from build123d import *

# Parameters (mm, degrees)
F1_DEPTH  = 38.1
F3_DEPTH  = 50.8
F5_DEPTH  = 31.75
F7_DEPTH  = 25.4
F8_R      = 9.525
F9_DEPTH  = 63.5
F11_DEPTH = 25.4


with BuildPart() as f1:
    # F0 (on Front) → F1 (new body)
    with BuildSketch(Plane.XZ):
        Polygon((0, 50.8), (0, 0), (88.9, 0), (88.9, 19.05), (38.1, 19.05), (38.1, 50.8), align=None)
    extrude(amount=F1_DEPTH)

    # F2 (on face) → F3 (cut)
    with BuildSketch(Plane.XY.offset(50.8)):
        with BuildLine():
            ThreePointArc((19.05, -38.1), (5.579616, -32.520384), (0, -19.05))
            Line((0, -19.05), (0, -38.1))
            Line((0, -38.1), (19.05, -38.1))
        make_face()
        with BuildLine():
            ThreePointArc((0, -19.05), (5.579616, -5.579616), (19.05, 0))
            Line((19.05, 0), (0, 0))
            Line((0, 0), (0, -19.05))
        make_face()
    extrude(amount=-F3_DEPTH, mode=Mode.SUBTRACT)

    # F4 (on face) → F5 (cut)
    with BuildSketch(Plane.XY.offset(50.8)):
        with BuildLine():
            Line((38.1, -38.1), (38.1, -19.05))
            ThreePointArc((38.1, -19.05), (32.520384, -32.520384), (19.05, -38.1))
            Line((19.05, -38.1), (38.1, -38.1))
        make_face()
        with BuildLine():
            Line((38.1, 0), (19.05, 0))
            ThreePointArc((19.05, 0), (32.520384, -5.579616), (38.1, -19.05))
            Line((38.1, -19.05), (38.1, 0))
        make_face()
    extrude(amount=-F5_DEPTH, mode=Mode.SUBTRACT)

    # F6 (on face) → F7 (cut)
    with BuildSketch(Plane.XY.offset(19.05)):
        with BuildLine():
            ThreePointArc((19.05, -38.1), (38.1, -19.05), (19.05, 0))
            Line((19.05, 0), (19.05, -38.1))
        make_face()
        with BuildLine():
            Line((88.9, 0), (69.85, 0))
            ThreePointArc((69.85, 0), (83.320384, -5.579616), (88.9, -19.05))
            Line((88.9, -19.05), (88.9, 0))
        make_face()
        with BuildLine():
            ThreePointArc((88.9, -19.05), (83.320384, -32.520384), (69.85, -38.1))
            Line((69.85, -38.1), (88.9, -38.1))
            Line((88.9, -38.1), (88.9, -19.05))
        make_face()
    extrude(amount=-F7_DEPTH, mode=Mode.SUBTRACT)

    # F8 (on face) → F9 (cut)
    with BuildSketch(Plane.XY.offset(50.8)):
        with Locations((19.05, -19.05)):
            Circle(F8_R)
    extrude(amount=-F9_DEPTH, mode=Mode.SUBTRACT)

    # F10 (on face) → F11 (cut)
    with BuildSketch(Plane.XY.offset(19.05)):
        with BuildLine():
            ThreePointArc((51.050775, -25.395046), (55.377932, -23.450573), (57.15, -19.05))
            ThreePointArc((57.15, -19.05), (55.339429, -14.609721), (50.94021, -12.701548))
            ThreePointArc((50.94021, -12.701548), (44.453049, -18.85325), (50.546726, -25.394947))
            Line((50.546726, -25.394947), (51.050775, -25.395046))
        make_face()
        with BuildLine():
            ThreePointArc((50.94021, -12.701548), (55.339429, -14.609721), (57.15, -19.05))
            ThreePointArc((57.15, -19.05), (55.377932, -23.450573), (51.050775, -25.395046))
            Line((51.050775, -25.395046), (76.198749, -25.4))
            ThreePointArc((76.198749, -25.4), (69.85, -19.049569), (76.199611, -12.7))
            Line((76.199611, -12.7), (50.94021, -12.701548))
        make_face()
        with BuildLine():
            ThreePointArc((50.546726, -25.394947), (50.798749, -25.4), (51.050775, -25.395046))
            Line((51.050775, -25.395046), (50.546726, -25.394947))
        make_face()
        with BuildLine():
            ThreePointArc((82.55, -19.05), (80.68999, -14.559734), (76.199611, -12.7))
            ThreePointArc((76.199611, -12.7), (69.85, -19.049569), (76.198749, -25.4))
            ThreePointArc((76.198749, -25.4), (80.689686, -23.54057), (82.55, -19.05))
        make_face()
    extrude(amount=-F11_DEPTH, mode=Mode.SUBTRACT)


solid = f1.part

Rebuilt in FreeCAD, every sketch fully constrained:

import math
import FreeCAD as App
import Part
import Sketcher
Q = App.Units.Quantity


def add_polygon(sketch, points):
    """Adds a closed chain of lines whose ends are joined by coincident constraints."""
    first, n = sketch.GeometryCount, len(points)
    for a, b in zip(points, points[1:] + points[:1]):
        sketch.addGeometry(Part.LineSegment(App.Vector(*a, 0), App.Vector(*b, 0)), False)
    for i in range(n):
        sketch.addConstraint(Sketcher.Constraint("Coincident", first + i, 2, first + (i + 1) % n, 1))

doc = App.newDocument("Part")
body = doc.addObject("PartDesign::Body", "Body")
body.AllowCompound = True

sketch1 = body.newObject("Sketcher::SketchObject", "Sketch")
sketch1.AttachmentSupport = (doc.getObject("XZ_Plane"), [""])
sketch1.MapMode = "FlatFace"
add_polygon(sketch1, [(0, 50.8), (0, 0), (88.9, 0), (88.9, 19.05), (38.1, 19.05), (38.1, 50.8)])
sketch1.addConstraint([
    Sketcher.Constraint("Vertical", 0),
    Sketcher.Constraint("Horizontal", 1),
    Sketcher.Constraint("Vertical", 2),
    Sketcher.Constraint("Horizontal", 3),
    Sketcher.Constraint("Vertical", 4),
    Sketcher.Constraint("Horizontal", 5),
    Sketcher.Constraint("Coincident", 0, 2, -1, 1),
    Sketcher.Constraint("Equal", 3, 0),
    Sketcher.Constraint("DistanceX", 3, 2, 3, 1, Q("2 in")),
    Sketcher.Constraint("DistanceX", 1, 1, 1, 2, Q("3.5 in")),
    Sketcher.Constraint("DistanceY", 2, 1, 2, 2, Q("0.75 in")),
])
pad1 = body.newObject("PartDesign::Pad", "Pad")
pad1.Profile = sketch1
pad1.Length = Q("1.5 in")

sketch2 = body.newObject("Sketcher::SketchObject", "Sketch001")
sketch2.AttachmentSupport = (doc.getObject("XY_Plane"), [""])
sketch2.MapMode = "FlatFace"
sketch2.AttachmentOffset = App.Placement(App.Vector(0, 0, 2 * 25.4), App.Rotation())
sketch2.addGeometry([
    Part.ArcOfCircle(Part.Circle(App.Vector(19.050001, -19.049999, 0), App.Vector(0, 0, 1), 19.050001), math.radians(-179.999998), math.radians(-90.000002)),
    Part.LineSegment(App.Vector(0, -19.05, 0), App.Vector(0, -38.1, 0)),
    Part.LineSegment(App.Vector(0, -38.1, 0), App.Vector(19.05, -38.1, 0)),
    Part.ArcOfCircle(Part.Circle(App.Vector(19.050001, -19.050001, 0), App.Vector(0, 0, 1), 19.050001), math.radians(90.000002), math.radians(179.999998)),
    Part.LineSegment(App.Vector(19.05, 0, 0), App.Vector(0, 0, 0)),
    Part.LineSegment(App.Vector(0, 0, 0), App.Vector(0, -19.05, 0)),
], False)
sketch2.addConstraint([
    Sketcher.Constraint("Tangent", 0, 1, 1, 1),
    Sketcher.Constraint("Coincident", 1, 2, 2, 1),
    Sketcher.Constraint("Tangent", 2, 2, 0, 2),
    Sketcher.Constraint("Tangent", 3, 1, 4, 1),
    Sketcher.Constraint("Coincident", 4, 2, 5, 1),
    Sketcher.Constraint("Tangent", 5, 2, 3, 2),
    Sketcher.Constraint("Vertical", 1),
    Sketcher.Constraint("Horizontal", 2),
    Sketcher.Constraint("Horizontal", 4),
    Sketcher.Constraint("Vertical", 5),
    Sketcher.Constraint("Coincident", 4, 2, -1, 1),
    Sketcher.Constraint("Coincident", 3, 3, 0, 3),
    Sketcher.Constraint("Equal", 0, 3),
    Sketcher.Constraint("Radius", 0, Q("0.75 in")),
])
pocket1 = body.newObject("PartDesign::Pocket", "Pocket")
pocket1.Profile = sketch2
pocket1.Length = Q("2 in")

sketch3 = body.newObject("Sketcher::SketchObject", "Sketch002")
sketch3.AttachmentSupport = (doc.getObject("XY_Plane"), [""])
sketch3.MapMode = "FlatFace"
sketch3.AttachmentOffset = App.Placement(App.Vector(0, 0, 2 * 25.4), App.Rotation())
sketch3.addGeometry([
    Part.LineSegment(App.Vector(38.1, -38.1, 0), App.Vector(38.1, -19.05, 0)),
    Part.ArcOfCircle(Part.Circle(App.Vector(19.049999, -19.049999, 0), App.Vector(0, 0, 1), 19.050001), math.radians(-89.999998), math.radians(-0.000002)),
    Part.LineSegment(App.Vector(19.05, -38.1, 0), App.Vector(38.1, -38.1, 0)),
    Part.LineSegment(App.Vector(38.1, 0, 0), App.Vector(19.05, 0, 0)),
    Part.ArcOfCircle(Part.Circle(App.Vector(19.049999, -19.050001, 0), App.Vector(0, 0, 1), 19.050001), math.radians(0.000002), math.radians(89.999998)),
    Part.LineSegment(App.Vector(38.1, -19.05, 0), App.Vector(38.1, 0, 0)),
], False)
sketch3.addConstraint([
    Sketcher.Constraint("Tangent", 0, 2, 1, 2),
    Sketcher.Constraint("Tangent", 1, 1, 2, 1),
    Sketcher.Constraint("Coincident", 2, 2, 0, 1),
    Sketcher.Constraint("Tangent", 3, 2, 4, 2),
    Sketcher.Constraint("Tangent", 4, 1, 5, 1),
    Sketcher.Constraint("Coincident", 5, 2, 3, 1),
    Sketcher.Constraint("Vertical", 0),
    Sketcher.Constraint("Horizontal", 2),
    Sketcher.Constraint("Horizontal", 3),
    Sketcher.Constraint("Vertical", 5),
    Sketcher.Constraint("Coincident", 4, 3, 1, 3),
    Sketcher.Constraint("Equal", 1, 4),
    Sketcher.Constraint("PointOnObject", 3, 2, -1),
    Sketcher.Constraint("Radius", 1, Q("0.75 in")),
    Sketcher.Constraint("DistanceX", -1, 1, 0, 2, Q("1.5 in")),
])
pocket2 = body.newObject("PartDesign::Pocket", "Pocket001")
pocket2.Profile = sketch3
pocket2.Length = Q("1.25 in")

sketch4 = body.newObject("Sketcher::SketchObject", "Sketch003")
sketch4.AttachmentSupport = (doc.getObject("XY_Plane"), [""])
sketch4.MapMode = "FlatFace"
sketch4.AttachmentOffset = App.Placement(App.Vector(0, 0, 0.75 * 25.4), App.Rotation())
sketch4.addGeometry([
    Part.ArcOfCircle(Part.Circle(App.Vector(19.05, -19.05, 0), App.Vector(0, 0, 1), 19.05), math.radians(-90), math.radians(90)),
    Part.LineSegment(App.Vector(19.05, 0, 0), App.Vector(19.05, -38.1, 0)),
    Part.LineSegment(App.Vector(88.9, 0, 0), App.Vector(69.85, 0, 0)),
    Part.ArcOfCircle(Part.Circle(App.Vector(69.849999, -19.050001, 0), App.Vector(0, 0, 1), 19.050001), math.radians(0.000002), math.radians(89.999998)),
    Part.LineSegment(App.Vector(88.9, -19.05, 0), App.Vector(88.9, 0, 0)),
    Part.ArcOfCircle(Part.Circle(App.Vector(69.849999, -19.049999, 0), App.Vector(0, 0, 1), 19.050001), math.radians(-89.999998), math.radians(-0.000002)),
    Part.LineSegment(App.Vector(69.85, -38.1, 0), App.Vector(88.9, -38.1, 0)),
    Part.LineSegment(App.Vector(88.9, -38.1, 0), App.Vector(88.9, -19.05, 0)),
], False)
sketch4.addConstraint([
    Sketcher.Constraint("Coincident", 0, 1, 1, 2),
    Sketcher.Constraint("Coincident", 1, 1, 0, 2),
    Sketcher.Constraint("Tangent", 2, 2, 3, 2),
    Sketcher.Constraint("Tangent", 3, 1, 4, 1),
    Sketcher.Constraint("Coincident", 4, 2, 2, 1),
    Sketcher.Constraint("Tangent", 5, 1, 6, 1),
    Sketcher.Constraint("Coincident", 6, 2, 7, 1),
    Sketcher.Constraint("Tangent", 7, 2, 5, 2),
    Sketcher.Constraint("Vertical", 1),
    Sketcher.Constraint("Horizontal", 2),
    Sketcher.Constraint("Vertical", 4),
    Sketcher.Constraint("Horizontal", 6),
    Sketcher.Constraint("Vertical", 7),
    Sketcher.Constraint("Coincident", 5, 3, 3, 3),
    Sketcher.Constraint("Equal", 0, 3),
    Sketcher.Constraint("Equal", 3, 5),
    Sketcher.Constraint("PointOnObject", 1, 1, -1),
    Sketcher.Constraint("PointOnObject", 2, 2, -1),
    Sketcher.Constraint("Radius", 0, Q("0.75 in")),
    Sketcher.Constraint("DistanceX", 0, 3, 3, 3, Q("2 in")),
    Sketcher.Constraint("DistanceX", 0, 1, 3, 3, Q("2 in")),
    Sketcher.Constraint("DistanceX", -1, 1, 3, 1, Q("3.5 in")),
])
pocket3 = body.newObject("PartDesign::Pocket", "Pocket002")
pocket3.Profile = sketch4
pocket3.Length = Q("1 in")

sketch5 = body.newObject("Sketcher::SketchObject", "Sketch004")
sketch5.AttachmentSupport = (doc.getObject("XY_Plane"), [""])
sketch5.MapMode = "FlatFace"
sketch5.AttachmentOffset = App.Placement(App.Vector(0, 0, 2 * 25.4), App.Rotation())
sketch5.addGeometry(Part.Circle(App.Vector(19.05, -19.05, 0), App.Vector(0, 0, 1), 9.525), False)
sketch5.addConstraint([
    Sketcher.Constraint("Diameter", 0, Q("0.75 in")),
    Sketcher.Constraint("DistanceX", -1, 1, 0, 3, Q("0.75 in")),
    Sketcher.Constraint("DistanceY", 0, 3, -1, 1, Q("0.75 in")),
])
pocket4 = body.newObject("PartDesign::Pocket", "Pocket003")
pocket4.Profile = sketch5
pocket4.Length = Q("2.5 in")

sketch6 = body.newObject("Sketcher::SketchObject", "Sketch005")
sketch6.AttachmentSupport = (doc.getObject("XY_Plane"), [""])
sketch6.MapMode = "FlatFace"
sketch6.AttachmentOffset = App.Placement(App.Vector(0, 0, 0.75 * 25.4), App.Rotation())
sketch6.addGeometry([
    Part.ArcOfCircle(Part.Circle(App.Vector(50.8, -19.05, 0), App.Vector(0, 0, 1), 6.35), math.radians(88.734791), math.radians(267.714111)),
    Part.ArcOfCircle(Part.Circle(App.Vector(50.799997, -19.050307, 0), App.Vector(0, 0, 1), 6.349694), math.radians(-92.285967), math.radians(-87.73654)),
    Part.LineSegment(App.Vector(51.050775, -25.395046, 0), App.Vector(76.198749, -25.4, 0)),
    Part.ArcOfCircle(Part.Circle(App.Vector(76.2, -19.05, 0), App.Vector(0, 0, 1), 6.35), math.radians(-90.011285), math.radians(-0.000002)),
    Part.ArcOfCircle(Part.Circle(App.Vector(76.2, -19.05, 0), App.Vector(0, 0, 1), 6.35), math.radians(0.000002), math.radians(90.003508)),
    Part.LineSegment(App.Vector(76.199611, -12.7, 0), App.Vector(50.94021, -12.701548, 0)),
], False)
sketch6.addConstraint([
    Sketcher.Constraint("Coincident", 0, 2, 1, 1),
    Sketcher.Constraint("Coincident", 1, 2, 2, 1),
    Sketcher.Constraint("Coincident", 2, 2, 3, 1),
    Sketcher.Constraint("Coincident", 3, 2, 4, 1),
    Sketcher.Constraint("Coincident", 4, 2, 5, 1),
    Sketcher.Constraint("Coincident", 5, 2, 0, 1),
    Sketcher.Constraint("Coincident", 4, 3, 3, 3),
    Sketcher.Constraint("Radius", 0, Q("0.25 in")),
    Sketcher.Constraint("Radius", 3, Q("0.25 in")),
    Sketcher.Constraint("DistanceX", -1, 1, 0, 3, Q("2 in")),
    Sketcher.Constraint("DistanceX", -1, 1, 1, 3, Q("1.9999999 in")),
    Sketcher.Constraint("DistanceX", -1, 1, 3, 3, Q("3 in")),
    Sketcher.Constraint("DistanceY", 2, 2, -1, 1, Q("1 in")),
    Sketcher.Constraint("DistanceY", 0, 3, -1, 1, Q("0.75 in")),
    Sketcher.Constraint("DistanceY", 3, 2, -1, 1, Q("0.75 in")),
    Sketcher.Constraint("Radius", 1, 6.349694),
    Sketcher.Constraint("Distance", 5, 25.259401),
    Sketcher.Constraint("DistanceY", 0, 2, 5, 2, 12.693399),
    Sketcher.Constraint("DistanceX", -1, 1, 2, 2, 76.198749),
    Sketcher.Constraint("DistanceX", -1, 1, 4, 2, 76.199611),
    Sketcher.Constraint("DistanceX", 0, 2, 1, 2, 0.504049),
])
pocket5 = body.newObject("PartDesign::Pocket", "Pocket004")
pocket5.Profile = sketch6
pocket5.Length = Q("1 in")

doc.recompute()
